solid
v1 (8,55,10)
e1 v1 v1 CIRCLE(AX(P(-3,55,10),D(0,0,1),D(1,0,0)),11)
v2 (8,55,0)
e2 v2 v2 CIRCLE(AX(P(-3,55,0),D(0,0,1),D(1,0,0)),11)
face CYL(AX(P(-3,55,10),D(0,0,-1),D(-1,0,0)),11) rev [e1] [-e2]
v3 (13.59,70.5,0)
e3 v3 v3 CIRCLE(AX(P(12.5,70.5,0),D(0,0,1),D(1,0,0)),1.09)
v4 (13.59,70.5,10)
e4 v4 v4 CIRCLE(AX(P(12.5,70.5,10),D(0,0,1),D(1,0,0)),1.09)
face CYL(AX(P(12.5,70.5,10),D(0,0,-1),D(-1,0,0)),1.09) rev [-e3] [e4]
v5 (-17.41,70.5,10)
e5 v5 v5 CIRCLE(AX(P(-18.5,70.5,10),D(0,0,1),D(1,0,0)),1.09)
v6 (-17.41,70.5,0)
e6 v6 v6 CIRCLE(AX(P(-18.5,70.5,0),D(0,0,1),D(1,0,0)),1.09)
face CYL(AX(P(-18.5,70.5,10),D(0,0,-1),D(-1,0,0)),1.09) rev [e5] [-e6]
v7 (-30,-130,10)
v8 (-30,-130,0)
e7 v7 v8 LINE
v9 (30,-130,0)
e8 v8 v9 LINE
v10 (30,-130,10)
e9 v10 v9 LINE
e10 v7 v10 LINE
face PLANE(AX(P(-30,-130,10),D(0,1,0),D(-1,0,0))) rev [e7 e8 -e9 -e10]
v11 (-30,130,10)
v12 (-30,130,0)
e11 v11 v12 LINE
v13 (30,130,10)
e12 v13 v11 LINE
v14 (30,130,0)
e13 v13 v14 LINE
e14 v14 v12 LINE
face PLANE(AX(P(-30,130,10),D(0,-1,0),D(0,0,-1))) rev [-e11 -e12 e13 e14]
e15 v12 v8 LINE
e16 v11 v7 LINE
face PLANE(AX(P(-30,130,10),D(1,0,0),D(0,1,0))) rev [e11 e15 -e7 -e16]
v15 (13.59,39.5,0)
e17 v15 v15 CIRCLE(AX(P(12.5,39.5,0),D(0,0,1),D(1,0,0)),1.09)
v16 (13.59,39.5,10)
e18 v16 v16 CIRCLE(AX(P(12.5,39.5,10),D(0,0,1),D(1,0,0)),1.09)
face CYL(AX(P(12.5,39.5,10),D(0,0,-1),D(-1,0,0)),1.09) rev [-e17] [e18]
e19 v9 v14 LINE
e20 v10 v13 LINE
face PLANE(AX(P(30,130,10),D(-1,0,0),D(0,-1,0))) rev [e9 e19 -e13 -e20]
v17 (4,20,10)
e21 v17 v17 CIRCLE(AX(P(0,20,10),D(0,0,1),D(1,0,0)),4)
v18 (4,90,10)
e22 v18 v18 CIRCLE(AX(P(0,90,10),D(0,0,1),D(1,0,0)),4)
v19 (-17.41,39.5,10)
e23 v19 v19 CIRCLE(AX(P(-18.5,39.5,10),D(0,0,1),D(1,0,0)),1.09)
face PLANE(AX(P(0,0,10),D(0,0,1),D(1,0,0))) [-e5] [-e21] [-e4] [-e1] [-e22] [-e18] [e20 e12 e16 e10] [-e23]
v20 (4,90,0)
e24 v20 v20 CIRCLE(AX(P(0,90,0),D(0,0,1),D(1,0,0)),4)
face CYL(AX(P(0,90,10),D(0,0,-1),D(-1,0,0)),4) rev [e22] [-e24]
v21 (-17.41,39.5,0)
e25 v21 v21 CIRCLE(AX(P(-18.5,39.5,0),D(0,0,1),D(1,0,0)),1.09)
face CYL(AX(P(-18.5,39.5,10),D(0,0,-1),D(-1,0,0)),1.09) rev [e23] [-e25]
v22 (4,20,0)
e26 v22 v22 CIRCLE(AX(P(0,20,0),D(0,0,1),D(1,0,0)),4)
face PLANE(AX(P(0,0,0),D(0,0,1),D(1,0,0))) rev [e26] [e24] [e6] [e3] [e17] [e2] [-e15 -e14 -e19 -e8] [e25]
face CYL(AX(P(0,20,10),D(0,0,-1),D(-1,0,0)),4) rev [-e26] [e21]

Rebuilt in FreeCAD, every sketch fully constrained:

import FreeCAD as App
import Part
import Sketcher


def add_polygon(sketch, points):
    """Adds a closed chain of lines whose ends are joined by coincident constraints."""
    first, n = sketch.GeometryCount, len(points)
    for a, b in zip(points, points[1:] + points[:1]):
        sketch.addGeometry(Part.LineSegment(App.Vector(*a, 0), App.Vector(*b, 0)), False)
    for i in range(n):
        sketch.addConstraint(Sketcher.Constraint("Coincident", first + i, 2, first + (i + 1) % n, 1))

doc = App.newDocument("Part")
params = doc.addObject("Spreadsheet::Sheet", "Params")
for row, (alias, value) in enumerate([
    ("sketch1_diameter", "8 mm"),
    ("sketch1_diameter2", "22 mm"),
    ("sketch1_diameter3", "2.18 mm"),
    ("sketch1_width", "60 mm"),
    ("sketch1_height", "260 mm"),
    ("pad1_length", "10 mm"),
], start=1):
    params.set(f"A{row}", alias)
    params.set(f"B{row}", "=" + value)
    params.setAlias(f"B{row}", alias)

body = doc.addObject("PartDesign::Body", "Body")

sketch1 = body.newObject("Sketcher::SketchObject", "Sketch")
sketch1.AttachmentSupport = (doc.getObject("XY_Plane"), [""])
sketch1.MapMode = "FlatFace"
add_polygon(sketch1, [(-30, 130), (-30, -130), (30, -130), (30, 130)])
sketch1.addGeometry(Part.Circle(App.Vector(-18.5, 39.5, 0), App.Vector(0, 0, 1), 1.1), False)
sketch1.addGeometry(Part.Circle(App.Vector(0, 20, 0), App.Vector(0, 0, 1), 4), False)
sketch1.addGeometry(Part.Circle(App.Vector(12.5, 39.5, 0), App.Vector(0, 0, 1), 1.1), False)
sketch1.addGeometry(Part.Circle(App.Vector(-18.5, 70.5, 0), App.Vector(0, 0, 1), 1.1), False)
sketch1.addGeometry(Part.Circle(App.Vector(-3, 55, 0), App.Vector(0, 0, 1), 11), False)
sketch1.addGeometry(Part.Circle(App.Vector(12.5, 70.5, 0), App.Vector(0, 0, 1), 1.1), False)
sketch1.addGeometry(Part.Circle(App.Vector(0, 90, 0), App.Vector(0, 0, 1), 4), False)
sketch1.addConstraint([
    Sketcher.Constraint("Vertical", 0),
    Sketcher.Constraint("Horizontal", 1),
    Sketcher.Constraint("Vertical", 2),
    Sketcher.Constraint("Horizontal", 3),
    Sketcher.Constraint("Equal", 4, 6),
    Sketcher.Constraint("Equal", 6, 7),
    Sketcher.Constraint("Equal", 7, 9),
    Sketcher.Constraint("Equal", 5, 10),
    Sketcher.Constraint("Symmetric", 0, 2, 2, 2, -1, 1),
    Sketcher.Constraint("PointOnObject", 5, 3, -2),
    Sketcher.Constraint("PointOnObject", 10, 3, -2),
    Sketcher.Constraint("Horizontal", 4, 3, 6, 3),
    Sketcher.Constraint("Horizontal", 7, 3, 9, 3),
    Sketcher.Constraint("Vertical", 4, 3, 7, 3),
    Sketcher.Constraint("Vertical", 6, 3, 9, 3),
    Sketcher.Constraint("Diameter", 5, 8.0),
    Sketcher.Constraint("Diameter", 8, 22.0),
    Sketcher.Constraint("Diameter", 4, 2.18),
    Sketcher.Constraint("DistanceX", 1, 1, 1, 2, 60.0),
    Sketcher.Constraint("DistanceY", 0, 2, 0, 1, 260.0),
    Sketcher.Constraint("DistanceY", -1, 1, 5, 3, 20.0),
    Sketcher.Constraint("DistanceX", 8, 3, -1, 1, 3.0),
    Sketcher.Constraint("DistanceY", -1, 1, 8, 3, 55.0),
    Sketcher.Constraint("DistanceY", -1, 1, 10, 3, 90.0),
    Sketcher.Constraint("DistanceX", 4, 3, 6, 3, 31.0),
    Sketcher.Constraint("DistanceY", 4, 3, 7, 3, 31.0),
    Sketcher.Constraint("DistanceX", 4, 3, -1, 1, 18.5),
    Sketcher.Constraint("DistanceY", -1, 1, 4, 3, 39.5),
])
sketch1.setExpression("Constraints[19]", "Params.sketch1_diameter")
sketch1.setExpression("Constraints[20]", "Params.sketch1_diameter2")
sketch1.setExpression("Constraints[21]", "Params.sketch1_diameter3")
sketch1.setExpression("Constraints[22]", "Params.sketch1_width")
sketch1.setExpression("Constraints[23]", "Params.sketch1_height")
pad1 = body.newObject("PartDesign::Pad", "Pad")
pad1.Profile = sketch1
pad1.setExpression("Length", "Params.pad1_length")

doc.recompute()
